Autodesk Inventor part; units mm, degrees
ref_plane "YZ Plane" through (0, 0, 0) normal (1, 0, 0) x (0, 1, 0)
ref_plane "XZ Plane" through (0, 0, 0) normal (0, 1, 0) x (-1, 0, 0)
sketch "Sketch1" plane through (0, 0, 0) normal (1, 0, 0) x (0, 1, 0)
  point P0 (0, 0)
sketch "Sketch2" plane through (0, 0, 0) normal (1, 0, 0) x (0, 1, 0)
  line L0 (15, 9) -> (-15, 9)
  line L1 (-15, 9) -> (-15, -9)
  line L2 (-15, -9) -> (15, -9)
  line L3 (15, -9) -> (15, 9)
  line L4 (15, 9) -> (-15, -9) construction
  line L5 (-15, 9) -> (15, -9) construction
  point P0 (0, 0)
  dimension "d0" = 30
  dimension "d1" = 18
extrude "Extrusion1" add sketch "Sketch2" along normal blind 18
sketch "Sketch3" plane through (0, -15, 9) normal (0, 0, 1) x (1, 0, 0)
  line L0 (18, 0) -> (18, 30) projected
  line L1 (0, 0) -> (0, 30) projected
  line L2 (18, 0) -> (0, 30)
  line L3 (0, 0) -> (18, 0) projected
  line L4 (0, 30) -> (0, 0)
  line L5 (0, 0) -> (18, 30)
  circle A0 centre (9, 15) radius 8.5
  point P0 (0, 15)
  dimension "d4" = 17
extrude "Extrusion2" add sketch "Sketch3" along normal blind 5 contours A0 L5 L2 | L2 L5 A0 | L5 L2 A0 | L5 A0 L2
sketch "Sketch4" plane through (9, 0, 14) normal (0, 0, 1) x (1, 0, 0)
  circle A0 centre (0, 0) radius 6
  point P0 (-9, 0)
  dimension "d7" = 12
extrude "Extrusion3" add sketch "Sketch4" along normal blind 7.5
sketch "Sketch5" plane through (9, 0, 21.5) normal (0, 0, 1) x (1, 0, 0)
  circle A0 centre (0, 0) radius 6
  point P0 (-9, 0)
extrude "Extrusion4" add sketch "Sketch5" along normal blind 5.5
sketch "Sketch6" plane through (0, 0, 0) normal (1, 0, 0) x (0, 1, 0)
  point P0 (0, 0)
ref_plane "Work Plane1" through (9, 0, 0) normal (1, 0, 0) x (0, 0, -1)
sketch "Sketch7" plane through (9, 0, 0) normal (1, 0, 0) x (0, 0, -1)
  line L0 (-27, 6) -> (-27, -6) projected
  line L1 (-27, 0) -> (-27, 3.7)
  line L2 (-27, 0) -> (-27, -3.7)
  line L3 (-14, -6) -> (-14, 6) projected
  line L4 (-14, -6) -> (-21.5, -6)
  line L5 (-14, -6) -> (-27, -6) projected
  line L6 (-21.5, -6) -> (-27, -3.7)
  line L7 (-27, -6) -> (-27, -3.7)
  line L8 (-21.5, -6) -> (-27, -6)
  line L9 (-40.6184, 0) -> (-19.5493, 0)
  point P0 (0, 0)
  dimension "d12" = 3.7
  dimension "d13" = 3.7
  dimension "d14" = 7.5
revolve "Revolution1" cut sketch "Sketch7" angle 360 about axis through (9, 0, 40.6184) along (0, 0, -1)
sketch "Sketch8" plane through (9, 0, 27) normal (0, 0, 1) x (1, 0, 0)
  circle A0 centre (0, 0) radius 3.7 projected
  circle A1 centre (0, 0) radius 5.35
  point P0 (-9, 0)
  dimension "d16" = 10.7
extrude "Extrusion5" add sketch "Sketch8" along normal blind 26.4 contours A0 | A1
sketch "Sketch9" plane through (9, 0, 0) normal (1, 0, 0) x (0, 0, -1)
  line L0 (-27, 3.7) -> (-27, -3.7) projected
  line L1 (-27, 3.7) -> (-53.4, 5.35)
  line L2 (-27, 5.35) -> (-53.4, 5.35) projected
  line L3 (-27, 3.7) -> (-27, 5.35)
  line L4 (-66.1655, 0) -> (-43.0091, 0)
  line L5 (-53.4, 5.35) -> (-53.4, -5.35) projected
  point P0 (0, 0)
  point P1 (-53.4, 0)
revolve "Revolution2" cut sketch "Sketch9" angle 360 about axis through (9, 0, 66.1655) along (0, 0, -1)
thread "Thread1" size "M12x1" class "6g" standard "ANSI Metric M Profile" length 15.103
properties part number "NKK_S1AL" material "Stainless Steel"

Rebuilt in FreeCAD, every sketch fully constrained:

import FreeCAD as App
import Part
import Sketcher

V = App.Vector
Q = App.Units.Quantity


def add_polygon(sketch, points):
    """Adds a closed chain of lines whose ends are joined by coincident constraints."""
    first, n = sketch.GeometryCount, len(points)
    for a, b in zip(points, points[1:] + points[:1]):
        sketch.addGeometry(Part.LineSegment(App.Vector(*a, 0), App.Vector(*b, 0)), False)
    for i in range(n):
        sketch.addConstraint(Sketcher.Constraint("Coincident", first + i, 2, first + (i + 1) % n, 1))

doc = App.newDocument("Part")
body = doc.addObject("PartDesign::Body", "Body")

sketch1 = body.newObject("Sketcher::SketchObject", "Sketch")
sketch1.AttachmentSupport = (doc.getObject("YZ_Plane"), [""])
sketch1.MapMode = "FlatFace"
add_polygon(sketch1, [(15, -9), (15, 9), (-15, 9), (-15, -9)])
sketch1.addConstraint([
    Sketcher.Constraint("Vertical", 0),
    Sketcher.Constraint("Horizontal", 1),
    Sketcher.Constraint("Vertical", 2),
    Sketcher.Constraint("Horizontal", 3),
    Sketcher.Constraint("Symmetric", 0, 2, 2, 2, -1, 1),
    Sketcher.Constraint("DistanceX", 1, 2, 1, 1, Q("30 mm")),
    Sketcher.Constraint("DistanceY", 0, 1, 0, 2, Q("18 mm")),
])
pad1 = body.newObject("PartDesign::Pad", "Pad")
pad1.Profile = sketch1
pad1.Length = 18

sketch2 = body.newObject("Sketcher::SketchObject", "Sketch001")
sketch2.AttachmentSupport = (doc.getObject("XY_Plane"), [""])
sketch2.MapMode = "FlatFace"
sketch2.AttachmentOffset = App.Placement(V(0, 0, 9), App.Rotation())
sketch2.addGeometry(Part.Circle(V(9, 0, 0), V(0, 0, 1), 8), False)
sketch2.addConstraint([
    Sketcher.Constraint("PointOnObject", 0, 3, -1),
    Sketcher.Constraint("Diameter", 0, Q("17 mm")),
    Sketcher.Constraint("DistanceX", -1, 1, 0, 3, Q("9 mm")),
])
pad2 = body.newObject("PartDesign::Pad", "Pad001")
pad2.Profile = sketch2
pad2.Length = 5

sketch3 = body.newObject("Sketcher::SketchObject", "Sketch002")
sketch3.AttachmentSupport = (doc.getObject("XY_Plane"), [""])
sketch3.MapMode = "FlatFace"
sketch3.AttachmentOffset = App.Placement(V(0, 0, 14), App.Rotation())
sketch3.addGeometry(Part.Circle(V(9, 0, 0), V(0, 0, 1), 6), False)
sketch3.addConstraint([
    Sketcher.Constraint("PointOnObject", 0, 3, -1),
    Sketcher.Constraint("Diameter", 0, Q("12 mm")),
    Sketcher.Constraint("DistanceX", -1, 1, 0, 3, Q("9 mm")),
])
pad3 = body.newObject("PartDesign::Pad", "Pad002")
pad3.Profile = sketch3
pad3.Length = 7.5

sketch4 = body.newObject("Sketcher::SketchObject", "Sketch003")
sketch4.AttachmentSupport = (doc.getObject("XY_Plane"), [""])
sketch4.MapMode = "FlatFace"
sketch4.AttachmentOffset = App.Placement(V(0, 0, 21.5), App.Rotation())
sketch4.addGeometry(Part.Circle(V(9, 0, 0), V(0, 0, 1), 6), False)
sketch4.addConstraint([
    Sketcher.Constraint("PointOnObject", 0, 3, -1),
    Sketcher.Constraint("Diameter", 0, Q("12 mm")),
    Sketcher.Constraint("DistanceX", -1, 1, 0, 3, Q("9 mm")),
])
pad4 = body.newObject("PartDesign::Pad", "Pad003")
pad4.Profile = sketch4
pad4.Length = 5.5

sketch5 = body.newObject("Sketcher::SketchObject", "Sketch004")
sketch5.AttachmentSupport = (doc.getObject("YZ_Plane"), [""])
sketch5.MapMode = "FlatFace"
sketch5.AttachmentOffset = App.Placement(V(0, 0, 9), App.Rotation())
add_polygon(sketch5, [(-6, 21.5), (-3.7, 27), (-6, 27)])
sketch5.addConstraint([
    Sketcher.Constraint("Horizontal", 1),
    Sketcher.Constraint("Vertical", 2),
    Sketcher.Constraint("DistanceX", 0, 2, -1, 1, Q("3.7 mm")),
    Sketcher.Constraint("DistanceX", 1, 2, 1, 1, Q("2.3 mm")),
    Sketcher.Constraint("DistanceY", 2, 2, 2, 1, Q("5.5 mm")),
    Sketcher.Constraint("DistanceY", -1, 1, 0, 2, Q("27 mm")),
])
groove = body.newObject("PartDesign::Groove", "Groove")
groove.Profile = sketch5
groove.ReferenceAxis = (sketch5, ["V_Axis"])
groove.Angle = 360

sketch6 = body.newObject("Sketcher::SketchObject", "Sketch005")
sketch6.AttachmentSupport = (doc.getObject("XY_Plane"), [""])
sketch6.MapMode = "FlatFace"
sketch6.AttachmentOffset = App.Placement(V(0, 0, 27), App.Rotation())
sketch6.addGeometry(Part.Circle(V(9, 0, 0), V(0, 0, 1), 5), False)
sketch6.addConstraint([
    Sketcher.Constraint("PointOnObject", 0, 3, -1),
    Sketcher.Constraint("Diameter", 0, Q("10.7 mm")),
    Sketcher.Constraint("DistanceX", -1, 1, 0, 3, Q("9 mm")),
])
pad5 = body.newObject("PartDesign::Pad", "Pad004")
pad5.Profile = sketch6
pad5.Length = 26.4

sketch7 = body.newObject("Sketcher::SketchObject", "Sketch006")
sketch7.AttachmentSupport = (doc.getObject("YZ_Plane"), [""])
sketch7.MapMode = "FlatFace"
sketch7.AttachmentOffset = App.Placement(V(0, 0, 9), App.Rotation())
add_polygon(sketch7, [(5.3, 53.4), (3.7, 27), (5.3, 27)])
sketch7.addConstraint([
    Sketcher.Constraint("Horizontal", 1),
    Sketcher.Constraint("Vertical", 2),
    Sketcher.Constraint("DistanceY", 2, 1, 2, 2, Q("26.4 mm")),
    Sketcher.Constraint("DistanceY", -1, 1, 0, 2, Q("27 mm")),
    Sketcher.Constraint("DistanceX", 1, 1, 1, 2, Q("1.65 mm")),
    Sketcher.Constraint("DistanceX", -1, 1, 0, 2, Q("3.7 mm")),
])
groove2 = body.newObject("PartDesign::Groove", "Groove001")
groove2.Profile = sketch7
groove2.ReferenceAxis = (sketch7, ["V_Axis"])
groove2.Angle = 360

doc.recompute()
